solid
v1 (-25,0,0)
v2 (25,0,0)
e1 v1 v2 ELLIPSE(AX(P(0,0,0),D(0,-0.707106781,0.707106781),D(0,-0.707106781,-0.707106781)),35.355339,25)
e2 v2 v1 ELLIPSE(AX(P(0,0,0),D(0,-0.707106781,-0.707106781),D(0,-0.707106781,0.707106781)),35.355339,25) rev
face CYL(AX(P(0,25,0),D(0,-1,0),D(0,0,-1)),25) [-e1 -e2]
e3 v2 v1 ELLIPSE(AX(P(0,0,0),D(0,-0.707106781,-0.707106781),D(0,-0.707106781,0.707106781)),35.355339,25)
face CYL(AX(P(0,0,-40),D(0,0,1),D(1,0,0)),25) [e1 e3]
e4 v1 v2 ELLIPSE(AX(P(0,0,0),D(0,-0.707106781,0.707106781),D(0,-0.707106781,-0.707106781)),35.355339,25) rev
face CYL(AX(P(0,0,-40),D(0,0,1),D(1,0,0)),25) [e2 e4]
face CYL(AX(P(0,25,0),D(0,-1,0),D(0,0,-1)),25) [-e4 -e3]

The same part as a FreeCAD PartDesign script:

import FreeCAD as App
import Part
import Sketcher

V = App.Vector


def add_polygon(sketch, points):
    """Adds a closed chain of lines whose ends are joined by coincident constraints."""
    first, n = sketch.GeometryCount, len(points)
    for a, b in zip(points, points[1:] + points[:1]):
        sketch.addGeometry(Part.LineSegment(App.Vector(*a, 0), App.Vector(*b, 0)), False)
    for i in range(n):
        sketch.addConstraint(Sketcher.Constraint("Coincident", first + i, 2, first + (i + 1) % n, 1))

doc = App.newDocument("Part")
body = doc.addObject("PartDesign::Body", "Body")

sketch1 = body.newObject("Sketcher::SketchObject", "Sketch")
sketch1.AttachmentSupport = (doc.getObject("XZ_Plane"), [""])
sketch1.MapMode = "FlatFace"
sketch1.addGeometry(Part.Circle(V(0, 0, 0), V(0, 0, 1), 25), False)
sketch1.addConstraint([
    Sketcher.Constraint("Coincident", 0, 3, -1, 1),
    Sketcher.Constraint("Diameter", 0, 50.0),
])
pad1 = body.newObject("PartDesign::Pad", "Pad")
pad1.Profile = sketch1
pad1.Length = 50
pad1.Midplane = True

sketch2 = body.newObject("Sketcher::SketchObject", "Sketch001")
sketch2.AttachmentSupport = (doc.getObject("XY_Plane"), [""])
sketch2.MapMode = "FlatFace"
add_polygon(sketch2, [(-34.66, 34.66), (-34.66, -34.66), (34.66, -34.66), (34.66, 34.66)])
sketch2.addGeometry(Part.Circle(V(0, 0, 0), V(0, 0, 1), 25), False)
sketch2.addConstraint([
    Sketcher.Constraint("Vertical", 0),
    Sketcher.Constraint("Horizontal", 1),
    Sketcher.Constraint("Vertical", 2),
    Sketcher.Constraint("Horizontal", 3),
    Sketcher.Constraint("Coincident", 4, 3, -1, 1),
    Sketcher.Constraint("Symmetric", 0, 2, 2, 2, -1, 1),
    Sketcher.Constraint("Equal", 3, 0),
    Sketcher.Constraint("Diameter", 4, 50.0),
    Sketcher.Constraint("DistanceX", 1, 1, 1, 2, 69.32),
])
pocket1 = body.newObject("PartDesign::Pocket", "Pocket")
pocket1.Profile = sketch2
pocket1.Length = 80
pocket1.Midplane = True

doc.recompute()
